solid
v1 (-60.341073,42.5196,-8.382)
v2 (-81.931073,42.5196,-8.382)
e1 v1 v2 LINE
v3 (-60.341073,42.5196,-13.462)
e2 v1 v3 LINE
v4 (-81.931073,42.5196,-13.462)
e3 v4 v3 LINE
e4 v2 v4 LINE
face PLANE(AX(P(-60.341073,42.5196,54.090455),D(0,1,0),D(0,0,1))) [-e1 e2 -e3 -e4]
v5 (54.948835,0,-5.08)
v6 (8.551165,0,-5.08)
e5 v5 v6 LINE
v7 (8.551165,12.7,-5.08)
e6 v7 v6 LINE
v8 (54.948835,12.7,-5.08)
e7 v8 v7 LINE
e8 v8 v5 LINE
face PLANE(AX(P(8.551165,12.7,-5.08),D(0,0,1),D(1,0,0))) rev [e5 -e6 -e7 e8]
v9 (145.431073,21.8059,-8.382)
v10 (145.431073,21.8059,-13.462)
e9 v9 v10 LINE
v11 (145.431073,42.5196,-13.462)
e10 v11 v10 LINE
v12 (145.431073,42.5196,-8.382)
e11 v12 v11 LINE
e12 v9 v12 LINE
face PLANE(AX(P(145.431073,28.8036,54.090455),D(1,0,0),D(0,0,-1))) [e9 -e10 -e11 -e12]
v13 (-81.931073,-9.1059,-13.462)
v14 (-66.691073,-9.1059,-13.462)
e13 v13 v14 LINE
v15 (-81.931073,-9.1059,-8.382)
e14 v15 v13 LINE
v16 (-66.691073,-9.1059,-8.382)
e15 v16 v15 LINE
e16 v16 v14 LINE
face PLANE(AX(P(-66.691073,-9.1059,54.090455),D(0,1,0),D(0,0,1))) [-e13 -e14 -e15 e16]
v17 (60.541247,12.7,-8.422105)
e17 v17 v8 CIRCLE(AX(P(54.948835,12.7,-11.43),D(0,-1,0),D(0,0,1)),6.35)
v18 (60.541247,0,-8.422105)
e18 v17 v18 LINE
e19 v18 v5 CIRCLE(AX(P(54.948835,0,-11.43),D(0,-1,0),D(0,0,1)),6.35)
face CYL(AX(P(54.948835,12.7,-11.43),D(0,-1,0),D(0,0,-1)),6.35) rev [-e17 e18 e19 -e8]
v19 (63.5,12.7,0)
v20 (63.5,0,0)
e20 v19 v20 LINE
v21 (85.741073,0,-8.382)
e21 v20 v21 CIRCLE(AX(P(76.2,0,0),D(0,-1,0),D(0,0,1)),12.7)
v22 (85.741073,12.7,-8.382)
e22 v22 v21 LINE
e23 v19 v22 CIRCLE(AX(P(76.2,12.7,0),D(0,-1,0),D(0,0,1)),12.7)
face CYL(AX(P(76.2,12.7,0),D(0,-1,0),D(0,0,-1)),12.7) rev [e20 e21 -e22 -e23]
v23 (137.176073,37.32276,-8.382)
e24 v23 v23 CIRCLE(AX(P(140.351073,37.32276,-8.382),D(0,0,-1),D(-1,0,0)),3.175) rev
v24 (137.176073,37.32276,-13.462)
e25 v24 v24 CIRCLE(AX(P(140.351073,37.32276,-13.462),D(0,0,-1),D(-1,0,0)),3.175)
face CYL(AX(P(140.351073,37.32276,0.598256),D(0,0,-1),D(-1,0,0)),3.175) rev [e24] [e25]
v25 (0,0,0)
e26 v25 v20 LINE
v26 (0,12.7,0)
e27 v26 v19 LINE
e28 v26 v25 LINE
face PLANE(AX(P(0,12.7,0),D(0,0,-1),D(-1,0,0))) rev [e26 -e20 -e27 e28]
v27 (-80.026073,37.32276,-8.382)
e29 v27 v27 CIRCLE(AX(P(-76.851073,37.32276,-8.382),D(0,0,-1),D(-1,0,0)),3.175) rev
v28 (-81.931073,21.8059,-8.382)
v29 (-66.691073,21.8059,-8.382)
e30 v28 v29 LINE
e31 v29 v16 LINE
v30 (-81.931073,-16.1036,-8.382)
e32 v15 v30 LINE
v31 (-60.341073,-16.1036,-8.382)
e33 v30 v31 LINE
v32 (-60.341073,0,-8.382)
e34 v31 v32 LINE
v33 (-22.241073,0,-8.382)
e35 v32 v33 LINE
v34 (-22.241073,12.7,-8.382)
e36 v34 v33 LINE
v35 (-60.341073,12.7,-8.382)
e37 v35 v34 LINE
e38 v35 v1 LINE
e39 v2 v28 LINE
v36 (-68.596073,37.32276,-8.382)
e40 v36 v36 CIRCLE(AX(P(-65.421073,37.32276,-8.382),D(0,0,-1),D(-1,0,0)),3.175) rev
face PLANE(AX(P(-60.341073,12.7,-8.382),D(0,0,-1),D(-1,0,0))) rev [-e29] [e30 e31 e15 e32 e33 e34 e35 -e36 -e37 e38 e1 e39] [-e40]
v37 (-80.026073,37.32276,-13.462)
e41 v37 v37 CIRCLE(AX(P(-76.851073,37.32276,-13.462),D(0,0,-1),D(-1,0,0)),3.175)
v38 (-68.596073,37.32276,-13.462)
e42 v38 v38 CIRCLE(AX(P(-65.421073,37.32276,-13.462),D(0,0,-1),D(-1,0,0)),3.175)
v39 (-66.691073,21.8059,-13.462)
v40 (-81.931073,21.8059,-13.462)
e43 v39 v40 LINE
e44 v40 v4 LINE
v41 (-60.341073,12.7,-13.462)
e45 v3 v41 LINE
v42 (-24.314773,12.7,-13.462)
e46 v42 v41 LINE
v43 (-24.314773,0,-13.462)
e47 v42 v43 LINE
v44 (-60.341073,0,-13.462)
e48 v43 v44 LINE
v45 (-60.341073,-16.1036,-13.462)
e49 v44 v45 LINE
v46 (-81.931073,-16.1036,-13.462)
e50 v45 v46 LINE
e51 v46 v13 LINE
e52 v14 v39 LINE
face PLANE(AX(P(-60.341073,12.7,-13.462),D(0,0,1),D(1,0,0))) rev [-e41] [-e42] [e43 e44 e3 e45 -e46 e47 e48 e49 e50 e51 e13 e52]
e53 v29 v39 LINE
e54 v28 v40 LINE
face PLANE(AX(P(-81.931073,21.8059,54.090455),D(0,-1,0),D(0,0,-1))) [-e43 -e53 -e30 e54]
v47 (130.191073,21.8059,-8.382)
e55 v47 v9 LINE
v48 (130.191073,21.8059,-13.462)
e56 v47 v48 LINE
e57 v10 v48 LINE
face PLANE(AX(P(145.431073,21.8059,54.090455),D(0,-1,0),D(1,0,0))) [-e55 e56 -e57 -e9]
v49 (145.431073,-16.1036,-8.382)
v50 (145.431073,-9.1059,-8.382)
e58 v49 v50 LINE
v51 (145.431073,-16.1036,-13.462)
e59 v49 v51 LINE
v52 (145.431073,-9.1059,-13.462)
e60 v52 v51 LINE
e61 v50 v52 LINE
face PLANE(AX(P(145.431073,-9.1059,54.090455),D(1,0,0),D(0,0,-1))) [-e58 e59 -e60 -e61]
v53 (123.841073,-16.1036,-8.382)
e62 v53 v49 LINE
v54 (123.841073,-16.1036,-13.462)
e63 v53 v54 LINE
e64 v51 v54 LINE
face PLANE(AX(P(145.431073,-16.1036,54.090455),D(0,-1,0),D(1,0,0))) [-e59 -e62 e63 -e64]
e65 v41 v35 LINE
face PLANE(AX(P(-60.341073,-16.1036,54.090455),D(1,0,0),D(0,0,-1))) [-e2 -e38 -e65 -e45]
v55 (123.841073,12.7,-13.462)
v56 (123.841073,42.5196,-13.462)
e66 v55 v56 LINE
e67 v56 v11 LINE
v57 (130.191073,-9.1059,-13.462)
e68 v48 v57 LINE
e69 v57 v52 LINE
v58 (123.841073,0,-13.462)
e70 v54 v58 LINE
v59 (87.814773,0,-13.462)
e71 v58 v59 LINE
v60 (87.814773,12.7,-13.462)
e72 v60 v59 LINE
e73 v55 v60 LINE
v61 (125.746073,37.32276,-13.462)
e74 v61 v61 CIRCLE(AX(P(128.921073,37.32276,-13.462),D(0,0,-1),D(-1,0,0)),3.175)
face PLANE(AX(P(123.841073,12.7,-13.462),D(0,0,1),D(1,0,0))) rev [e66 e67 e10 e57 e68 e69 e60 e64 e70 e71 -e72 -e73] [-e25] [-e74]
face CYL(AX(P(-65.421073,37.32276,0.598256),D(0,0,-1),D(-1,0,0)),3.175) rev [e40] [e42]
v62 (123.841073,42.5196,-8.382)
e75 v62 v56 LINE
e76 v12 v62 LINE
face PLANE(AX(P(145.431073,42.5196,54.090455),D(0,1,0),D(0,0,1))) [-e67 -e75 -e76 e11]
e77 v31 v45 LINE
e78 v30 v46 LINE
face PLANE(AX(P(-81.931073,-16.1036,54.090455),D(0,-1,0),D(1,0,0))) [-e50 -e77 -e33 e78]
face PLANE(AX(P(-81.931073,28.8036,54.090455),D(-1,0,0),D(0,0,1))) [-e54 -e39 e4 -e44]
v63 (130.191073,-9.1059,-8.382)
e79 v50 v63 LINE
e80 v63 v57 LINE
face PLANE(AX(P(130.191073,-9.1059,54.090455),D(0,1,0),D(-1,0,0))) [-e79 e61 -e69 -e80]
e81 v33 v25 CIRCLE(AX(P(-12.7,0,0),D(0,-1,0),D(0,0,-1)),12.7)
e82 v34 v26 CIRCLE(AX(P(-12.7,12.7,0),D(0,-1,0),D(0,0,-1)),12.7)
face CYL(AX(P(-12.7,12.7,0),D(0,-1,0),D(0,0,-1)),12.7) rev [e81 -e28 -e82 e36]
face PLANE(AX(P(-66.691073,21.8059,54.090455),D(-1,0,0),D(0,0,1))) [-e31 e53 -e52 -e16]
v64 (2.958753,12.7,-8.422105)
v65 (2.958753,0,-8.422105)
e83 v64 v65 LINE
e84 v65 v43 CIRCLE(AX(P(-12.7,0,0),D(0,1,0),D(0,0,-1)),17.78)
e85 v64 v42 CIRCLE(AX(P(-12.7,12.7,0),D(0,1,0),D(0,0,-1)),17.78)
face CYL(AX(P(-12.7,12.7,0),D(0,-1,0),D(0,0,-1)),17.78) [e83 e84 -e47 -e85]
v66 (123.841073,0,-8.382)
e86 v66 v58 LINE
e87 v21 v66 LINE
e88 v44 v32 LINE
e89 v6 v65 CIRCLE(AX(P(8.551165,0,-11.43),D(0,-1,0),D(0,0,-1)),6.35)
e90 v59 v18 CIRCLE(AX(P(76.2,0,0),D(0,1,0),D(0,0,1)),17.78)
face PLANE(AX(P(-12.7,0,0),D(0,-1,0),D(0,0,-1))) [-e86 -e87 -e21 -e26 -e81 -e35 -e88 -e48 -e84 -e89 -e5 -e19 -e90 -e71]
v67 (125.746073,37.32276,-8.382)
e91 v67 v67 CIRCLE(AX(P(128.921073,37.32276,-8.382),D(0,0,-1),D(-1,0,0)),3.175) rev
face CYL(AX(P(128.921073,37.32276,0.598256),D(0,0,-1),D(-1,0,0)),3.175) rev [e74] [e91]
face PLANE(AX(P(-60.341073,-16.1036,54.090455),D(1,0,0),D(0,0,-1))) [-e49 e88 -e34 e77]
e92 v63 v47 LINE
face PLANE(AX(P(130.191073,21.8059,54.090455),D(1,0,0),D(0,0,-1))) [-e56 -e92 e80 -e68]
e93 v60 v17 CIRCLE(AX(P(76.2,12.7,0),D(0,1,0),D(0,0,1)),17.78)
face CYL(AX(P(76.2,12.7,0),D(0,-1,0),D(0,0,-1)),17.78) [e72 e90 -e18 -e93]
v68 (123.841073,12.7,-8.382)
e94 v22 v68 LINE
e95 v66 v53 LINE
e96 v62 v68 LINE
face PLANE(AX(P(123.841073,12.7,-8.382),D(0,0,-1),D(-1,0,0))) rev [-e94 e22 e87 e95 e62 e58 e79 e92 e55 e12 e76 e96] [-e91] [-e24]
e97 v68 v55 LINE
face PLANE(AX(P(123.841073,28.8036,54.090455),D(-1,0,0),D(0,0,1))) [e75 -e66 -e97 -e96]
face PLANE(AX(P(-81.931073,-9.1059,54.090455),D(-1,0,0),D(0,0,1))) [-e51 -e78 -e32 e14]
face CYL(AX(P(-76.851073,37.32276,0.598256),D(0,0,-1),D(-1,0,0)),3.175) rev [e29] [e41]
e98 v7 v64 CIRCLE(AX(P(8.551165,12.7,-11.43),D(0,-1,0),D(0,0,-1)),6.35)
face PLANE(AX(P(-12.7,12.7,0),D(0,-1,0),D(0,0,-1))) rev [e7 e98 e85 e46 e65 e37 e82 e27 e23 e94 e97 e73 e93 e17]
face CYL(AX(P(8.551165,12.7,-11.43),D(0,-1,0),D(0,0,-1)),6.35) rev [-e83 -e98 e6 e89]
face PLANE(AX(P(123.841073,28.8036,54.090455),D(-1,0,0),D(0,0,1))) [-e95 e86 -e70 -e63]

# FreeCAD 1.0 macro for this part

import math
import FreeCAD as App
import Part
import Sketcher
Q = App.Units.Quantity

doc = App.newDocument("Part")
body = doc.addObject("PartDesign::Body", "Body")

sketch1 = body.newObject("Sketcher::SketchObject", "Sketch")
sketch1.AttachmentSupport = (doc.getObject("XZ_Plane"), [""])
sketch1.MapMode = "FlatFace"
sketch1.addGeometry([
    Part.LineSegment(App.Vector(0, 0, 0), App.Vector(64, 0, 0)),
    Part.ArcOfCircle(Part.Circle(App.Vector(76, 0, 0), App.Vector(0, 0, 1), 13), math.radians(180), math.radians(319)),
    Part.LineSegment(App.Vector(86, -8, 0), App.Vector(124, -8, 0)),
    Part.LineSegment(App.Vector(124, -8, 0), App.Vector(124, -13, 0)),
    Part.LineSegment(App.Vector(124, -13, 0), App.Vector(88, -13, 0)),
    Part.ArcOfCircle(Part.Circle(App.Vector(76, 0, 0), App.Vector(0, 0, 1), 18), math.radians(-152), math.radians(-49)),
    Part.ArcOfCircle(Part.Circle(App.Vector(55, -11, 0), App.Vector(0, 0, 1), 6), math.radians(28), math.radians(90)),
    Part.LineSegment(App.Vector(55, -5, 0), App.Vector(9, -5, 0)),
    Part.ArcOfCircle(Part.Circle(App.Vector(9, -11, 0), App.Vector(0, 0, 1), 6), math.radians(90), math.radians(152)),
    Part.ArcOfCircle(Part.Circle(App.Vector(-13, 0, 0), App.Vector(0, 0, 1), 18), math.radians(-131), math.radians(-28)),
    Part.LineSegment(App.Vector(-24, -13, 0), App.Vector(-60, -13, 0)),
    Part.LineSegment(App.Vector(-60, -13, 0), App.Vector(-60, -8, 0)),
    Part.LineSegment(App.Vector(-60, -8, 0), App.Vector(-22, -8, 0)),
    Part.ArcOfCircle(Part.Circle(App.Vector(-13, 0, 0), App.Vector(0, 0, 1), 13), math.radians(-139), math.radians(0)),
], False)
sketch1.addConstraint([
    Sketcher.Constraint("Coincident", 0, 2, 1, 1),
    Sketcher.Constraint("Coincident", 1, 2, 2, 1),
    Sketcher.Constraint("Coincident", 2, 2, 3, 1),
    Sketcher.Constraint("Coincident", 3, 2, 4, 1),
    Sketcher.Constraint("Coincident", 4, 2, 5, 2),
    Sketcher.Constraint("Tangent", 5, 1, 6, 1),
    Sketcher.Constraint("Tangent", 6, 2, 7, 1),
    Sketcher.Constraint("Tangent", 7, 2, 8, 1),
    Sketcher.Constraint("Tangent", 8, 2, 9, 2),
    Sketcher.Constraint("Coincident", 9, 1, 10, 1),
    Sketcher.Constraint("Coincident", 10, 2, 11, 1),
    Sketcher.Constraint("Coincident", 11, 2, 12, 1),
    Sketcher.Constraint("Coincident", 12, 2, 13, 1),
    Sketcher.Constraint("Coincident", 13, 2, 0, 1),
    Sketcher.Constraint("Horizontal", 0),
    Sketcher.Constraint("Horizontal", 2),
    Sketcher.Constraint("Vertical", 3),
    Sketcher.Constraint("Horizontal", 4),
    Sketcher.Constraint("Horizontal", 7),
    Sketcher.Constraint("Horizontal", 10),
    Sketcher.Constraint("Vertical", 11),
    Sketcher.Constraint("Horizontal", 12),
    Sketcher.Constraint("Coincident", 13, 2, -1, 1),
    Sketcher.Constraint("Coincident", 5, 3, 1, 3),
    Sketcher.Constraint("Coincident", 13, 3, 9, 3),
    Sketcher.Constraint("Equal", 6, 8),
    Sketcher.Constraint("Equal", 5, 9),
    Sketcher.Constraint("Equal", 1, 13),
    Sketcher.Constraint("PointOnObject", 1, 3, -1),
    Sketcher.Constraint("PointOnObject", 9, 3, -1),
    Sketcher.Constraint("Horizontal", 4, 2, 9, 1),
    Sketcher.Constraint("Horizontal", 2, 2, 11, 2),
    Sketcher.Constraint("Equal", 4, 10),
    Sketcher.Constraint("Radius", 1, Q("0.5 in")),
    Sketcher.Constraint("Radius", 5, Q("0.7 in")),
    Sketcher.Constraint("Radius", 6, Q("0.25 in")),
    Sketcher.Constraint("DistanceX", 0, 1, 0, 2, Q("2.5 in")),
    Sketcher.Constraint("DistanceX", 2, 1, 2, 2, Q("1.5 in")),
    Sketcher.Constraint("DistanceY", 3, 2, 3, 1, Q("0.2 in")),
    Sketcher.Constraint("DistanceY", 6, 2, -1, 1, Q("0.2 in")),
    Sketcher.Constraint("DistanceY", 1, 2, -1, 1, Q("0.33 in")),
])
pad1 = body.newObject("PartDesign::Pad", "Pad")
pad1.Profile = sketch1
pad1.Length = Q("0.5 in")
pad1.Reversed = True

sketch2 = body.newObject("Sketcher::SketchObject", "Sketch001")
sketch2.AttachmentSupport = (doc.getObject("XY_Plane"), [""])
sketch2.MapMode = "FlatFace"
sketch2.AttachmentOffset = App.Placement(App.Vector(0, 0, -0.53 * 25.4), App.Rotation())
sketch2.addGeometry([
    Part.LineSegment(App.Vector(-60, -16, 0), App.Vector(-82, -16, 0)),
    Part.LineSegment(App.Vector(-82, -16, 0), App.Vector(-82, -9, 0)),
    Part.LineSegment(App.Vector(-82, -9, 0), App.Vector(-67, -9, 0)),
    Part.LineSegment(App.Vector(-67, -9, 0), App.Vector(-67, 22, 0)),
    Part.LineSegment(App.Vector(-67, 22, 0), App.Vector(-82, 22, 0)),
    Part.LineSegment(App.Vector(-82, 22, 0), App.Vector(-82, 43, 0)),
    Part.LineSegment(App.Vector(-82, 43, 0), App.Vector(-60, 43, 0)),
    Part.LineSegment(App.Vector(-60, 43, 0), App.Vector(-60, -16, 0)),
    Part.LineSegment(App.Vector(124, -16, 0), App.Vector(124, 43, 0)),
    Part.LineSegment(App.Vector(124, 43, 0), App.Vector(145, 43, 0)),
    Part.LineSegment(App.Vector(145, 43, 0), App.Vector(145, 22, 0)),
    Part.LineSegment(App.Vector(145, 22, 0), App.Vector(130, 22, 0)),
    Part.LineSegment(App.Vector(130, 22, 0), App.Vector(130, -9, 0)),
    Part.LineSegment(App.Vector(130, -9, 0), App.Vector(145, -9, 0)),
    Part.LineSegment(App.Vector(145, -9, 0), App.Vector(145, -16, 0)),
    Part.LineSegment(App.Vector(145, -16, 0), App.Vector(124, -16, 0)),
], False)
sketch2.addConstraint([
    Sketcher.Constraint("Coincident", 0, 2, 1, 1),
    Sketcher.Constraint("Coincident", 1, 2, 2, 1),
    Sketcher.Constraint("Coincident", 2, 2, 3, 1),
    Sketcher.Constraint("Coincident", 3, 2, 4, 1),
    Sketcher.Constraint("Coincident", 4, 2, 5, 1),
    Sketcher.Constraint("Coincident", 5, 2, 6, 1),
    Sketcher.Constraint("Coincident", 6, 2, 7, 1),
    Sketcher.Constraint("Coincident", 7, 2, 0, 1),
    Sketcher.Constraint("Coincident", 8, 2, 9, 1),
    Sketcher.Constraint("Coincident", 9, 2, 10, 1),
    Sketcher.Constraint("Coincident", 10, 2, 11, 1),
    Sketcher.Constraint("Coincident", 11, 2, 12, 1),
    Sketcher.Constraint("Coincident", 12, 2, 13, 1),
    Sketcher.Constraint("Coincident", 13, 2, 14, 1),
    Sketcher.Constraint("Coincident", 14, 2, 15, 1),
    Sketcher.Constraint("Coincident", 15, 2, 8, 1),
    Sketcher.Constraint("Horizontal", 0),
    Sketcher.Constraint("Vertical", 1),
    Sketcher.Constraint("Horizontal", 2),
    Sketcher.Constraint("Vertical", 3),
    Sketcher.Constraint("Horizontal", 4),
    Sketcher.Constraint("Vertical", 5),
    Sketcher.Constraint("Horizontal", 6),
    Sketcher.Constraint("Vertical", 7),
    Sketcher.Constraint("Vertical", 8),
    Sketcher.Constraint("Horizontal", 9),
    Sketcher.Constraint("Vertical", 10),
    Sketcher.Constraint("Horizontal", 11),
    Sketcher.Constraint("Vertical", 12),
    Sketcher.Constraint("Horizontal", 13),
    Sketcher.Constraint("Vertical", 14),
    Sketcher.Constraint("Horizontal", 15),
    Sketcher.Constraint("Horizontal", 6, 2, 8, 2),
    Sketcher.Constraint("Horizontal", 4, 2, 10, 2),
    Sketcher.Constraint("Horizontal", 2, 2, 12, 2),
    Sketcher.Constraint("Horizontal", 7, 2, 14, 2),
    Sketcher.Constraint("Vertical", 1, 2, 4, 2),
    Sketcher.Constraint("Vertical", 10, 2, 13, 2),
    Sketcher.Constraint("Equal", 6, 9),
    Sketcher.Constraint("Equal", 4, 11),
    Sketcher.Constraint("DistanceX", 2, 1, 2, 2, Q("0.6 in")),
    Sketcher.Constraint("DistanceX", 0, 2, 0, 1, Q("0.85 in")),
    Sketcher.Constraint("DistanceY", 3, 1, 3, 2, Q("1.217 in")),
    Sketcher.Constraint("DistanceY", 7, 2, 7, 1, Q("2.308 in")),
    Sketcher.Constraint("DistanceY", 1, 1, 1, 2, Q("0.2755 in")),
    Sketcher.Constraint("DistanceY", 0, 2, -1, 1, Q("0.634 in")),
    Sketcher.Constraint("DistanceX", 0, 2, -1, 1, Q("81.931073 mm")),
    Sketcher.Constraint("DistanceX", -1, 1, 8, 2, Q("123.841073 mm")),
])
pad2 = body.newObject("PartDesign::Pad", "Pad001")
pad2.Profile = sketch2
pad2.Length = Q("0.2 in")

sketch3 = body.newObject("Sketcher::SketchObject", "Sketch002")
sketch3.AttachmentSupport = (doc.getObject("XY_Plane"), [""])
sketch3.MapMode = "FlatFace"
sketch3.AttachmentOffset = App.Placement(App.Vector(0, 0, -0.53 * 25.4), App.Rotation())
sketch3.addGeometry([
    Part.Circle(App.Vector(140.4, 37.3, 0), App.Vector(0, 0, 1), 3.2),
    Part.Circle(App.Vector(128.9, 37.3, 0), App.Vector(0, 0, 1), 3.2),
    Part.Circle(App.Vector(-65.4, 37.3, 0), App.Vector(0, 0, 1), 3.2),
    Part.Circle(App.Vector(-76.9, 37.3, 0), App.Vector(0, 0, 1), 3.2),
], False)
sketch3.addConstraint([
    Sketcher.Constraint("Equal", 0, 1),
    Sketcher.Constraint("Equal", 1, 2),
    Sketcher.Constraint("Equal", 2, 3),
    Sketcher.Constraint("Horizontal", 0, 3, 1, 3),
    Sketcher.Constraint("Horizontal", 1, 3, 2, 3),
    Sketcher.Constraint("Horizontal", 2, 3, 3, 3),
    Sketcher.Constraint("Diameter", 0, Q("0.25 in")),
    Sketcher.Constraint("DistanceX", 1, 3, 0, 3, Q("0.45 in")),
    Sketcher.Constraint("DistanceX", 3, 3, 2, 3, Q("0.45 in")),
    Sketcher.Constraint("DistanceY", -1, 1, 0, 3, Q("1.4694 in")),
    Sketcher.Constraint("DistanceX", -1, 1, 0, 3, Q("140.351073 mm")),
    Sketcher.Constraint("DistanceX", 2, 3, -1, 1, Q("65.421073 mm")),
])
pocket1 = body.newObject("PartDesign::Pocket", "Pocket")
pocket1.Profile = sketch3
pocket1.Length = Q("0.2 in")
pocket1.Reversed = True

doc.recompute()
